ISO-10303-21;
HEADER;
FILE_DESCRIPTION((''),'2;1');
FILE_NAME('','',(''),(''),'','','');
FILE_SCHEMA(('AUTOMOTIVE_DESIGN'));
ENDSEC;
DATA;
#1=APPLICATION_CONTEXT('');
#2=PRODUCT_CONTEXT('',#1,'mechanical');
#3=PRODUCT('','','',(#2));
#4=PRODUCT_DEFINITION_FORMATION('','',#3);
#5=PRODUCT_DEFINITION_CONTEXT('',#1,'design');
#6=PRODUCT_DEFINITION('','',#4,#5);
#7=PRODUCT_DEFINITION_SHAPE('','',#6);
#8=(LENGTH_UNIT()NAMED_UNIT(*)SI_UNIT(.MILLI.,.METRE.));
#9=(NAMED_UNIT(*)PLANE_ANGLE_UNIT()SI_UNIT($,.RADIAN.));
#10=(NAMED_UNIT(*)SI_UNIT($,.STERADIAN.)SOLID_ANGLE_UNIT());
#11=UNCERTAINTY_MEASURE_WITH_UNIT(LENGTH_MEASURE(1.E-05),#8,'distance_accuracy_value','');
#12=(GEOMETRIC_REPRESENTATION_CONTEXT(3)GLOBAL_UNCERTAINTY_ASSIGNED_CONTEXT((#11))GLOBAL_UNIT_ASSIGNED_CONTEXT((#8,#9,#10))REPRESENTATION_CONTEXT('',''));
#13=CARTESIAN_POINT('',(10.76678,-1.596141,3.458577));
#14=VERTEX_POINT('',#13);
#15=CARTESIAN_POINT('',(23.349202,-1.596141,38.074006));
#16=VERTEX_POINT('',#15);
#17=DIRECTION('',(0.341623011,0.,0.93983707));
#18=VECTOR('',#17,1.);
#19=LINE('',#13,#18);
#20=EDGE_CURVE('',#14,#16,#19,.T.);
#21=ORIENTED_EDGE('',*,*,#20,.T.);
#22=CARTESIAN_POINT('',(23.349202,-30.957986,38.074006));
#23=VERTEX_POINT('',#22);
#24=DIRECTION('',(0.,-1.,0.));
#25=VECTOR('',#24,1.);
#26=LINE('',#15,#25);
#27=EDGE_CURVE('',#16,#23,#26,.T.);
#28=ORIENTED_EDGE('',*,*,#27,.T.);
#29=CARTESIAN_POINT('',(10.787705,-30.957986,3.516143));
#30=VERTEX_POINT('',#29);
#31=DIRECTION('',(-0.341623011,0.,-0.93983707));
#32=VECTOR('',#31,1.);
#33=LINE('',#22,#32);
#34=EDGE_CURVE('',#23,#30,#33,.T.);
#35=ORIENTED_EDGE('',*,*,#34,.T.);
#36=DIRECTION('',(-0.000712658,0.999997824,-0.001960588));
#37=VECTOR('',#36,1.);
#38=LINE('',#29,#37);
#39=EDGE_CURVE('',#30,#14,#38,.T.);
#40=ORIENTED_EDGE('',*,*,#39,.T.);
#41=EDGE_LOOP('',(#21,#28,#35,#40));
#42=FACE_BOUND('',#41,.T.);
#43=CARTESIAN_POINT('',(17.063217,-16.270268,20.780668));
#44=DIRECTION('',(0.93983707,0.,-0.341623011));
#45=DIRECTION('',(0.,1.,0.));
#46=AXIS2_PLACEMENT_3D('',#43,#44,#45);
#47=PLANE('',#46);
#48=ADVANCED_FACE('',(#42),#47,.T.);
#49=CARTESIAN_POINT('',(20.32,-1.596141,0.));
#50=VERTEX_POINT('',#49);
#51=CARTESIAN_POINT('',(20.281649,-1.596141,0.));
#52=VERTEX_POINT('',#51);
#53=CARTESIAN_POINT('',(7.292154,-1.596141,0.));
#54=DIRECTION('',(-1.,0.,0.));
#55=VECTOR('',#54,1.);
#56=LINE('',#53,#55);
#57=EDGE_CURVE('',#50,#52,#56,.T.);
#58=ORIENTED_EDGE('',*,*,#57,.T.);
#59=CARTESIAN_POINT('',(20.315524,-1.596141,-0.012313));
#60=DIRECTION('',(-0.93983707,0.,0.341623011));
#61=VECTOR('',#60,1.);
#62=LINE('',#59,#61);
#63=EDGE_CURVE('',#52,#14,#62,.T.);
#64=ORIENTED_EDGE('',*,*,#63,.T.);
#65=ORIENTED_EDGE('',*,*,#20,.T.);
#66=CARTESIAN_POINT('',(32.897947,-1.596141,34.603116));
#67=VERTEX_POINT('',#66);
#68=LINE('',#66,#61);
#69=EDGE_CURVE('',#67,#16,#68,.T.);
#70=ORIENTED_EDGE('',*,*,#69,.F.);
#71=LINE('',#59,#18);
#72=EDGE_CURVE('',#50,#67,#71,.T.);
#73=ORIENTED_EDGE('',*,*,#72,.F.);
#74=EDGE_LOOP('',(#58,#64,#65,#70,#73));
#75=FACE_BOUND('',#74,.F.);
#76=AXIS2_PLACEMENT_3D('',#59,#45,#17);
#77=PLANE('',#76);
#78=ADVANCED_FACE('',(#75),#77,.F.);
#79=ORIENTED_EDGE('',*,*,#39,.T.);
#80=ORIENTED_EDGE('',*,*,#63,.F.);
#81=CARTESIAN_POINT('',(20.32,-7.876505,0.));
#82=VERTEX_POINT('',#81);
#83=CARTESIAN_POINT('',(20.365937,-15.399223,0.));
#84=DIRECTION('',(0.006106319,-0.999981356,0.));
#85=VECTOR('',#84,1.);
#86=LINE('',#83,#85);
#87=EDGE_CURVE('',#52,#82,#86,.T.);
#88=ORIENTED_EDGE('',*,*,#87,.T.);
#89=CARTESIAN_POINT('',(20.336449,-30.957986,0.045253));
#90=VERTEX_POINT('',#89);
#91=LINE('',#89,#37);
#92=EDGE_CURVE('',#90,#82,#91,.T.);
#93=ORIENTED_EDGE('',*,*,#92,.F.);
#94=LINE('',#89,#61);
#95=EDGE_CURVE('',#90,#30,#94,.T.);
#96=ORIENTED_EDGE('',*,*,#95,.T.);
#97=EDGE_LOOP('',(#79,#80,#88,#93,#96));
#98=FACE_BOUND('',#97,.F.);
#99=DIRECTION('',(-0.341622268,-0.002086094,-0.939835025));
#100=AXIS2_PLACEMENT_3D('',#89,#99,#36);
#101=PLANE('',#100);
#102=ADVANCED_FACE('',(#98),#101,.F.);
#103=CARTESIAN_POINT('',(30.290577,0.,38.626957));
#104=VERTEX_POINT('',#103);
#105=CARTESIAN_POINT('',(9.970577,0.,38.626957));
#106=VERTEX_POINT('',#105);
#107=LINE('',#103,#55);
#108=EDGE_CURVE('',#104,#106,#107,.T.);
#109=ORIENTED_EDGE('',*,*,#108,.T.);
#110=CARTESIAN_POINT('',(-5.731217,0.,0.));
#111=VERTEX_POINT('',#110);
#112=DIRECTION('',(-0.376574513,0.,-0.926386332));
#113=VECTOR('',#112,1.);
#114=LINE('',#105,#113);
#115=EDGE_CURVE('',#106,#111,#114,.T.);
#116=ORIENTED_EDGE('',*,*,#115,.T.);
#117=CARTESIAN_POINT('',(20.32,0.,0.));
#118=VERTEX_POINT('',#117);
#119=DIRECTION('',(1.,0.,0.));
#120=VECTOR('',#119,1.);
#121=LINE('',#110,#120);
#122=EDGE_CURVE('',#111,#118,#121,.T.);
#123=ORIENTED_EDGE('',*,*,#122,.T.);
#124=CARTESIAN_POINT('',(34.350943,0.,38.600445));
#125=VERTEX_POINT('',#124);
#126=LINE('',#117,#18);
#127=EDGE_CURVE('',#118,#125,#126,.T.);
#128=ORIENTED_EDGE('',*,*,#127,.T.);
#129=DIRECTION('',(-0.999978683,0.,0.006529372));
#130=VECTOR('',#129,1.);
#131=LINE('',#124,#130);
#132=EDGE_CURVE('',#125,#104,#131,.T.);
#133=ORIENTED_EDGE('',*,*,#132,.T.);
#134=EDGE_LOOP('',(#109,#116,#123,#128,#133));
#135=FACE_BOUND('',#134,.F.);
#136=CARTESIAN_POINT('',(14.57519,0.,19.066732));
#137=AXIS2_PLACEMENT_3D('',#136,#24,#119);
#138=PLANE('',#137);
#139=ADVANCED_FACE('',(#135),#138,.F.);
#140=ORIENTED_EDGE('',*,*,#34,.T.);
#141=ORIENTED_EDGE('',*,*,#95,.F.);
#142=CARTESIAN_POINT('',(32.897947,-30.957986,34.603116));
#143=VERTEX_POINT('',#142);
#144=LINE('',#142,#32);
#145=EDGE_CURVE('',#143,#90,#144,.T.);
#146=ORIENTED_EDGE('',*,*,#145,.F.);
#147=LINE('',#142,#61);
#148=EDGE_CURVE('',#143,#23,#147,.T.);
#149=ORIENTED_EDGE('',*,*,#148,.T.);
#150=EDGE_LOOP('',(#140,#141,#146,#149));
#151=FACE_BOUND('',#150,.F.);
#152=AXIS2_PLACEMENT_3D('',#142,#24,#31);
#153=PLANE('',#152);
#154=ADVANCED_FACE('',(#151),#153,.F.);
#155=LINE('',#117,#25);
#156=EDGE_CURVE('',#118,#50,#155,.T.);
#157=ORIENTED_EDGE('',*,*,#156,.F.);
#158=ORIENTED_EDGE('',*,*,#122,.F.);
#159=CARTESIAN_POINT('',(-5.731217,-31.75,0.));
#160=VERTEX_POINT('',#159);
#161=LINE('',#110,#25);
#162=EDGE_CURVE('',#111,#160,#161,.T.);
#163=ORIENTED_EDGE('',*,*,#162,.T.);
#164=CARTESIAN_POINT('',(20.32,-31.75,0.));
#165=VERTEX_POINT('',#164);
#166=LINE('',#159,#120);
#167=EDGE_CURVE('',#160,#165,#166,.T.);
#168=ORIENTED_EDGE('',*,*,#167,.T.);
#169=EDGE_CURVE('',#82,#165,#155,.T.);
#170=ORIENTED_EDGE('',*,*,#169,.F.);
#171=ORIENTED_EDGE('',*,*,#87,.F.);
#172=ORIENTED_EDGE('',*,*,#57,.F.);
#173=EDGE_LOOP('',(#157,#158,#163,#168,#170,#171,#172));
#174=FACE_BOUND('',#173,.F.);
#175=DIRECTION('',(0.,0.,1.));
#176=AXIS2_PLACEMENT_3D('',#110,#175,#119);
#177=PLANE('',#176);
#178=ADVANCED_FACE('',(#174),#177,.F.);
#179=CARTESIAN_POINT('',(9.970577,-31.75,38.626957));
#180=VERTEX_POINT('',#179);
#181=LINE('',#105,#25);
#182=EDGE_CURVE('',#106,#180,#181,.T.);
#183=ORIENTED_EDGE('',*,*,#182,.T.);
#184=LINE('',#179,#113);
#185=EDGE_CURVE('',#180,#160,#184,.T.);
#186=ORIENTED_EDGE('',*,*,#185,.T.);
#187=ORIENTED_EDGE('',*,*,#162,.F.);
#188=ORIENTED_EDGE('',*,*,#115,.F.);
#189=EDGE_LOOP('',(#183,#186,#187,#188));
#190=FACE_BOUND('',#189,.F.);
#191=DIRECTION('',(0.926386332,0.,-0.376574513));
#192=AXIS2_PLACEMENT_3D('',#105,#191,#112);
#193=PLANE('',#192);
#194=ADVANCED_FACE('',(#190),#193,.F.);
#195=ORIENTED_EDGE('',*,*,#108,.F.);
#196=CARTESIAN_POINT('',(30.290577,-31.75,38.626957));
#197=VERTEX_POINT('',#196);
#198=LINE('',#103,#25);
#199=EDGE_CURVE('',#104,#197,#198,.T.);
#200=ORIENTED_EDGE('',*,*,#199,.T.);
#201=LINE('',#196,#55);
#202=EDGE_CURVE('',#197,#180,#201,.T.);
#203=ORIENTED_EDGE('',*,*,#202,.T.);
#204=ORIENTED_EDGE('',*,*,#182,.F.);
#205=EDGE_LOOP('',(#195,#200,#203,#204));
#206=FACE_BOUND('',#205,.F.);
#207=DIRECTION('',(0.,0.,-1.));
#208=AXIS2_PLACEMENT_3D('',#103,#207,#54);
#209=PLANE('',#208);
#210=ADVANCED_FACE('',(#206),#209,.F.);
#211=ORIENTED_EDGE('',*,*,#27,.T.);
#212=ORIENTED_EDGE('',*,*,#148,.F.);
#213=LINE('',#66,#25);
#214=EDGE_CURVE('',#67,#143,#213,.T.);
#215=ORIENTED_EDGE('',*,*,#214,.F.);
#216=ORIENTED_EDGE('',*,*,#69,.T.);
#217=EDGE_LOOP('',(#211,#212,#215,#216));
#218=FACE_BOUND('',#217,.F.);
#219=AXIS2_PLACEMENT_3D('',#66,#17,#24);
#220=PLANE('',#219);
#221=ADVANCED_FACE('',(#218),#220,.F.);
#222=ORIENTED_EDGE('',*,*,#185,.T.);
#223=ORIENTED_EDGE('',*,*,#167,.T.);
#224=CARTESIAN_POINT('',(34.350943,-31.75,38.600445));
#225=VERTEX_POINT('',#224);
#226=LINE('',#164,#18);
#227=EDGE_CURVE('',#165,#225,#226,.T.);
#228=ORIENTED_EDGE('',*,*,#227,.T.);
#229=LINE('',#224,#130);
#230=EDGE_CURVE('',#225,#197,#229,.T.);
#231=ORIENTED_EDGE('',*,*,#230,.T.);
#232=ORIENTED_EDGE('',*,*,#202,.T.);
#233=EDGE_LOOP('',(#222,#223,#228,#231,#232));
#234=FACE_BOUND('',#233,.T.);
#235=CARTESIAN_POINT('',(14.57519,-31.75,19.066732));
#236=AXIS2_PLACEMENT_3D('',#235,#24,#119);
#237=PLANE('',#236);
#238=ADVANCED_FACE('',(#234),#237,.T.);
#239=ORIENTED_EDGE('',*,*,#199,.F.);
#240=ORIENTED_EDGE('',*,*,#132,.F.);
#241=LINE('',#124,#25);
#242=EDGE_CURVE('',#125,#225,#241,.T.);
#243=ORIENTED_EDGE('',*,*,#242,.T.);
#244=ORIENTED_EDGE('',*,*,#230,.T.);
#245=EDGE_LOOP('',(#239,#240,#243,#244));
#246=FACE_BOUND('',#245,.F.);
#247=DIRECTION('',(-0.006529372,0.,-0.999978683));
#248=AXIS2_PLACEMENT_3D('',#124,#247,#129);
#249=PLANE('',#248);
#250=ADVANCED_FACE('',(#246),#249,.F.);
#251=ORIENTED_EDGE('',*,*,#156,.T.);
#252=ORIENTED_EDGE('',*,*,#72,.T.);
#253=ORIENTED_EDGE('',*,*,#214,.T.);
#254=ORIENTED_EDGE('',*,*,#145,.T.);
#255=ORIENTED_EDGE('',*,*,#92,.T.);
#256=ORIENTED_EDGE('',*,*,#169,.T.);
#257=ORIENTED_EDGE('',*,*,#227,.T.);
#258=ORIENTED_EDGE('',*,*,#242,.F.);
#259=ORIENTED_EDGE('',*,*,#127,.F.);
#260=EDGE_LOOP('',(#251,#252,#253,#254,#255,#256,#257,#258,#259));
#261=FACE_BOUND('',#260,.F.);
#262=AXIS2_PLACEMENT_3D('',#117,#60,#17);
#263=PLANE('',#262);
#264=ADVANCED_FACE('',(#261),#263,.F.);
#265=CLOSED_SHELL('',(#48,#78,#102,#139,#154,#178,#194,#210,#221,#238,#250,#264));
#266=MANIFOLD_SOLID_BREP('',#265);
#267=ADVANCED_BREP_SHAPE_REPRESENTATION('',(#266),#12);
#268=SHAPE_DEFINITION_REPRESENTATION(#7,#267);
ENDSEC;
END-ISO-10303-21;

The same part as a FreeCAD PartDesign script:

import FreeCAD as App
import Part
import Sketcher
Q = App.Units.Quantity


def add_polygon(sketch, points):
    """Adds a closed chain of lines whose ends are joined by coincident constraints."""
    first, n = sketch.GeometryCount, len(points)
    for a, b in zip(points, points[1:] + points[:1]):
        sketch.addGeometry(Part.LineSegment(App.Vector(*a, 0), App.Vector(*b, 0)), False)
    for i in range(n):
        sketch.addConstraint(Sketcher.Constraint("Coincident", first + i, 2, first + (i + 1) % n, 1))

doc = App.newDocument("Part")
params = doc.addObject("Spreadsheet::Sheet", "Params")
for row, (alias, value) in enumerate([
    ("sketch1_width", "0.8 in"),
    ("pad1_length", "1.25 in"),
    ("pocket1_length", "0.4 in"),
], start=1):
    params.set(f"A{row}", alias)
    params.set(f"B{row}", "=" + value)
    params.setAlias(f"B{row}", alias)

body = doc.addObject("PartDesign::Body", "Body")

# Sketch on XZ plane
sketch1 = body.newObject("Sketcher::SketchObject", "Sketch")
sketch1.AttachmentSupport = (doc.getObject("XZ_Plane"), [""])
sketch1.MapMode = "FlatFace"
add_polygon(sketch1, [(-5.7, 0), (20.3, 0), (34.4, 38.6), (30.3, 38.6), (10, 38.6)])  # lines 0-4
sketch1.addConstraint(Sketcher.Constraint("Horizontal", 0))
sketch1.addConstraint(Sketcher.Constraint("Horizontal", 3))
sketch1.addConstraint(Sketcher.Constraint("PointOnObject", 0, 2, -1))
sketch1.addConstraint(Sketcher.Constraint("DistanceX", 3, 2, 3, 1, Q("0.8 in")))
sketch1.addConstraint(Sketcher.Constraint("DistanceX", -1, 1, 0, 2, Q("0.8 in")))
sketch1.addConstraint(Sketcher.Constraint("Distance", 1, Q("41.071422 mm")))
sketch1.addConstraint(Sketcher.Constraint("Distance", 4, Q("41.696381 mm")))
sketch1.addConstraint(Sketcher.Constraint("DistanceX", 0, 1, 0, 2, Q("26.051217 mm")))
sketch1.addConstraint(Sketcher.Constraint("DistanceX", 4, 2, 1, 2, Q("40.08216 mm")))
sketch1.addConstraint(Sketcher.Constraint("Distance", 2, Q("4.060452 mm")))
sketch1.setExpression("Constraints[8]", "Params.sketch1_width")
pad1 = body.newObject("PartDesign::Pad", "Pad")
pad1.Profile = sketch1
pad1.setExpression("Length", "Params.pad1_length")

# Sketch on an angled plane
sketch2 = body.newObject("Sketcher::SketchObject", "Sketch001")
sketch2.Placement = App.Placement(App.Vector(17.948528, 0, -6.524142), App.Rotation(App.Vector(0, 1, 0), App.Vector(0.341623011, 0, 0.93983707), App.Vector(0.93983707, 0, -0.341623011), "ZXY"))
add_polygon(sketch2, [(-31, 44), (-31, 7), (-2, 7), (-2, 44)])  # lines 0-3
sketch2.addConstraint(Sketcher.Constraint("Vertical", 0))
sketch2.addConstraint(Sketcher.Constraint("Vertical", 2))
sketch2.addConstraint(Sketcher.Constraint("Horizontal", 3))
sketch2.addConstraint(Sketcher.Constraint("DistanceY", 2, 1, 2, 2, Q("36.831309 mm")))
sketch2.addConstraint(Sketcher.Constraint("Distance", 1, Q("29.361908 mm")))
sketch2.addConstraint(Sketcher.Constraint("DistanceY", 0, 2, 0, 1, Q("36.770057 mm")))
sketch2.addConstraint(Sketcher.Constraint("DistanceY", -1, 1, 0, 2, Q("6.98993 mm")))
sketch2.addConstraint(Sketcher.Constraint("DistanceX", 1, 2, -1, 1, Q("1.596141 mm")))
pocket1 = body.newObject("PartDesign::Pocket", "Pocket")
pocket1.Profile = sketch2
pocket1.setExpression("Length", "Params.pocket1_length")

doc.recompute()
